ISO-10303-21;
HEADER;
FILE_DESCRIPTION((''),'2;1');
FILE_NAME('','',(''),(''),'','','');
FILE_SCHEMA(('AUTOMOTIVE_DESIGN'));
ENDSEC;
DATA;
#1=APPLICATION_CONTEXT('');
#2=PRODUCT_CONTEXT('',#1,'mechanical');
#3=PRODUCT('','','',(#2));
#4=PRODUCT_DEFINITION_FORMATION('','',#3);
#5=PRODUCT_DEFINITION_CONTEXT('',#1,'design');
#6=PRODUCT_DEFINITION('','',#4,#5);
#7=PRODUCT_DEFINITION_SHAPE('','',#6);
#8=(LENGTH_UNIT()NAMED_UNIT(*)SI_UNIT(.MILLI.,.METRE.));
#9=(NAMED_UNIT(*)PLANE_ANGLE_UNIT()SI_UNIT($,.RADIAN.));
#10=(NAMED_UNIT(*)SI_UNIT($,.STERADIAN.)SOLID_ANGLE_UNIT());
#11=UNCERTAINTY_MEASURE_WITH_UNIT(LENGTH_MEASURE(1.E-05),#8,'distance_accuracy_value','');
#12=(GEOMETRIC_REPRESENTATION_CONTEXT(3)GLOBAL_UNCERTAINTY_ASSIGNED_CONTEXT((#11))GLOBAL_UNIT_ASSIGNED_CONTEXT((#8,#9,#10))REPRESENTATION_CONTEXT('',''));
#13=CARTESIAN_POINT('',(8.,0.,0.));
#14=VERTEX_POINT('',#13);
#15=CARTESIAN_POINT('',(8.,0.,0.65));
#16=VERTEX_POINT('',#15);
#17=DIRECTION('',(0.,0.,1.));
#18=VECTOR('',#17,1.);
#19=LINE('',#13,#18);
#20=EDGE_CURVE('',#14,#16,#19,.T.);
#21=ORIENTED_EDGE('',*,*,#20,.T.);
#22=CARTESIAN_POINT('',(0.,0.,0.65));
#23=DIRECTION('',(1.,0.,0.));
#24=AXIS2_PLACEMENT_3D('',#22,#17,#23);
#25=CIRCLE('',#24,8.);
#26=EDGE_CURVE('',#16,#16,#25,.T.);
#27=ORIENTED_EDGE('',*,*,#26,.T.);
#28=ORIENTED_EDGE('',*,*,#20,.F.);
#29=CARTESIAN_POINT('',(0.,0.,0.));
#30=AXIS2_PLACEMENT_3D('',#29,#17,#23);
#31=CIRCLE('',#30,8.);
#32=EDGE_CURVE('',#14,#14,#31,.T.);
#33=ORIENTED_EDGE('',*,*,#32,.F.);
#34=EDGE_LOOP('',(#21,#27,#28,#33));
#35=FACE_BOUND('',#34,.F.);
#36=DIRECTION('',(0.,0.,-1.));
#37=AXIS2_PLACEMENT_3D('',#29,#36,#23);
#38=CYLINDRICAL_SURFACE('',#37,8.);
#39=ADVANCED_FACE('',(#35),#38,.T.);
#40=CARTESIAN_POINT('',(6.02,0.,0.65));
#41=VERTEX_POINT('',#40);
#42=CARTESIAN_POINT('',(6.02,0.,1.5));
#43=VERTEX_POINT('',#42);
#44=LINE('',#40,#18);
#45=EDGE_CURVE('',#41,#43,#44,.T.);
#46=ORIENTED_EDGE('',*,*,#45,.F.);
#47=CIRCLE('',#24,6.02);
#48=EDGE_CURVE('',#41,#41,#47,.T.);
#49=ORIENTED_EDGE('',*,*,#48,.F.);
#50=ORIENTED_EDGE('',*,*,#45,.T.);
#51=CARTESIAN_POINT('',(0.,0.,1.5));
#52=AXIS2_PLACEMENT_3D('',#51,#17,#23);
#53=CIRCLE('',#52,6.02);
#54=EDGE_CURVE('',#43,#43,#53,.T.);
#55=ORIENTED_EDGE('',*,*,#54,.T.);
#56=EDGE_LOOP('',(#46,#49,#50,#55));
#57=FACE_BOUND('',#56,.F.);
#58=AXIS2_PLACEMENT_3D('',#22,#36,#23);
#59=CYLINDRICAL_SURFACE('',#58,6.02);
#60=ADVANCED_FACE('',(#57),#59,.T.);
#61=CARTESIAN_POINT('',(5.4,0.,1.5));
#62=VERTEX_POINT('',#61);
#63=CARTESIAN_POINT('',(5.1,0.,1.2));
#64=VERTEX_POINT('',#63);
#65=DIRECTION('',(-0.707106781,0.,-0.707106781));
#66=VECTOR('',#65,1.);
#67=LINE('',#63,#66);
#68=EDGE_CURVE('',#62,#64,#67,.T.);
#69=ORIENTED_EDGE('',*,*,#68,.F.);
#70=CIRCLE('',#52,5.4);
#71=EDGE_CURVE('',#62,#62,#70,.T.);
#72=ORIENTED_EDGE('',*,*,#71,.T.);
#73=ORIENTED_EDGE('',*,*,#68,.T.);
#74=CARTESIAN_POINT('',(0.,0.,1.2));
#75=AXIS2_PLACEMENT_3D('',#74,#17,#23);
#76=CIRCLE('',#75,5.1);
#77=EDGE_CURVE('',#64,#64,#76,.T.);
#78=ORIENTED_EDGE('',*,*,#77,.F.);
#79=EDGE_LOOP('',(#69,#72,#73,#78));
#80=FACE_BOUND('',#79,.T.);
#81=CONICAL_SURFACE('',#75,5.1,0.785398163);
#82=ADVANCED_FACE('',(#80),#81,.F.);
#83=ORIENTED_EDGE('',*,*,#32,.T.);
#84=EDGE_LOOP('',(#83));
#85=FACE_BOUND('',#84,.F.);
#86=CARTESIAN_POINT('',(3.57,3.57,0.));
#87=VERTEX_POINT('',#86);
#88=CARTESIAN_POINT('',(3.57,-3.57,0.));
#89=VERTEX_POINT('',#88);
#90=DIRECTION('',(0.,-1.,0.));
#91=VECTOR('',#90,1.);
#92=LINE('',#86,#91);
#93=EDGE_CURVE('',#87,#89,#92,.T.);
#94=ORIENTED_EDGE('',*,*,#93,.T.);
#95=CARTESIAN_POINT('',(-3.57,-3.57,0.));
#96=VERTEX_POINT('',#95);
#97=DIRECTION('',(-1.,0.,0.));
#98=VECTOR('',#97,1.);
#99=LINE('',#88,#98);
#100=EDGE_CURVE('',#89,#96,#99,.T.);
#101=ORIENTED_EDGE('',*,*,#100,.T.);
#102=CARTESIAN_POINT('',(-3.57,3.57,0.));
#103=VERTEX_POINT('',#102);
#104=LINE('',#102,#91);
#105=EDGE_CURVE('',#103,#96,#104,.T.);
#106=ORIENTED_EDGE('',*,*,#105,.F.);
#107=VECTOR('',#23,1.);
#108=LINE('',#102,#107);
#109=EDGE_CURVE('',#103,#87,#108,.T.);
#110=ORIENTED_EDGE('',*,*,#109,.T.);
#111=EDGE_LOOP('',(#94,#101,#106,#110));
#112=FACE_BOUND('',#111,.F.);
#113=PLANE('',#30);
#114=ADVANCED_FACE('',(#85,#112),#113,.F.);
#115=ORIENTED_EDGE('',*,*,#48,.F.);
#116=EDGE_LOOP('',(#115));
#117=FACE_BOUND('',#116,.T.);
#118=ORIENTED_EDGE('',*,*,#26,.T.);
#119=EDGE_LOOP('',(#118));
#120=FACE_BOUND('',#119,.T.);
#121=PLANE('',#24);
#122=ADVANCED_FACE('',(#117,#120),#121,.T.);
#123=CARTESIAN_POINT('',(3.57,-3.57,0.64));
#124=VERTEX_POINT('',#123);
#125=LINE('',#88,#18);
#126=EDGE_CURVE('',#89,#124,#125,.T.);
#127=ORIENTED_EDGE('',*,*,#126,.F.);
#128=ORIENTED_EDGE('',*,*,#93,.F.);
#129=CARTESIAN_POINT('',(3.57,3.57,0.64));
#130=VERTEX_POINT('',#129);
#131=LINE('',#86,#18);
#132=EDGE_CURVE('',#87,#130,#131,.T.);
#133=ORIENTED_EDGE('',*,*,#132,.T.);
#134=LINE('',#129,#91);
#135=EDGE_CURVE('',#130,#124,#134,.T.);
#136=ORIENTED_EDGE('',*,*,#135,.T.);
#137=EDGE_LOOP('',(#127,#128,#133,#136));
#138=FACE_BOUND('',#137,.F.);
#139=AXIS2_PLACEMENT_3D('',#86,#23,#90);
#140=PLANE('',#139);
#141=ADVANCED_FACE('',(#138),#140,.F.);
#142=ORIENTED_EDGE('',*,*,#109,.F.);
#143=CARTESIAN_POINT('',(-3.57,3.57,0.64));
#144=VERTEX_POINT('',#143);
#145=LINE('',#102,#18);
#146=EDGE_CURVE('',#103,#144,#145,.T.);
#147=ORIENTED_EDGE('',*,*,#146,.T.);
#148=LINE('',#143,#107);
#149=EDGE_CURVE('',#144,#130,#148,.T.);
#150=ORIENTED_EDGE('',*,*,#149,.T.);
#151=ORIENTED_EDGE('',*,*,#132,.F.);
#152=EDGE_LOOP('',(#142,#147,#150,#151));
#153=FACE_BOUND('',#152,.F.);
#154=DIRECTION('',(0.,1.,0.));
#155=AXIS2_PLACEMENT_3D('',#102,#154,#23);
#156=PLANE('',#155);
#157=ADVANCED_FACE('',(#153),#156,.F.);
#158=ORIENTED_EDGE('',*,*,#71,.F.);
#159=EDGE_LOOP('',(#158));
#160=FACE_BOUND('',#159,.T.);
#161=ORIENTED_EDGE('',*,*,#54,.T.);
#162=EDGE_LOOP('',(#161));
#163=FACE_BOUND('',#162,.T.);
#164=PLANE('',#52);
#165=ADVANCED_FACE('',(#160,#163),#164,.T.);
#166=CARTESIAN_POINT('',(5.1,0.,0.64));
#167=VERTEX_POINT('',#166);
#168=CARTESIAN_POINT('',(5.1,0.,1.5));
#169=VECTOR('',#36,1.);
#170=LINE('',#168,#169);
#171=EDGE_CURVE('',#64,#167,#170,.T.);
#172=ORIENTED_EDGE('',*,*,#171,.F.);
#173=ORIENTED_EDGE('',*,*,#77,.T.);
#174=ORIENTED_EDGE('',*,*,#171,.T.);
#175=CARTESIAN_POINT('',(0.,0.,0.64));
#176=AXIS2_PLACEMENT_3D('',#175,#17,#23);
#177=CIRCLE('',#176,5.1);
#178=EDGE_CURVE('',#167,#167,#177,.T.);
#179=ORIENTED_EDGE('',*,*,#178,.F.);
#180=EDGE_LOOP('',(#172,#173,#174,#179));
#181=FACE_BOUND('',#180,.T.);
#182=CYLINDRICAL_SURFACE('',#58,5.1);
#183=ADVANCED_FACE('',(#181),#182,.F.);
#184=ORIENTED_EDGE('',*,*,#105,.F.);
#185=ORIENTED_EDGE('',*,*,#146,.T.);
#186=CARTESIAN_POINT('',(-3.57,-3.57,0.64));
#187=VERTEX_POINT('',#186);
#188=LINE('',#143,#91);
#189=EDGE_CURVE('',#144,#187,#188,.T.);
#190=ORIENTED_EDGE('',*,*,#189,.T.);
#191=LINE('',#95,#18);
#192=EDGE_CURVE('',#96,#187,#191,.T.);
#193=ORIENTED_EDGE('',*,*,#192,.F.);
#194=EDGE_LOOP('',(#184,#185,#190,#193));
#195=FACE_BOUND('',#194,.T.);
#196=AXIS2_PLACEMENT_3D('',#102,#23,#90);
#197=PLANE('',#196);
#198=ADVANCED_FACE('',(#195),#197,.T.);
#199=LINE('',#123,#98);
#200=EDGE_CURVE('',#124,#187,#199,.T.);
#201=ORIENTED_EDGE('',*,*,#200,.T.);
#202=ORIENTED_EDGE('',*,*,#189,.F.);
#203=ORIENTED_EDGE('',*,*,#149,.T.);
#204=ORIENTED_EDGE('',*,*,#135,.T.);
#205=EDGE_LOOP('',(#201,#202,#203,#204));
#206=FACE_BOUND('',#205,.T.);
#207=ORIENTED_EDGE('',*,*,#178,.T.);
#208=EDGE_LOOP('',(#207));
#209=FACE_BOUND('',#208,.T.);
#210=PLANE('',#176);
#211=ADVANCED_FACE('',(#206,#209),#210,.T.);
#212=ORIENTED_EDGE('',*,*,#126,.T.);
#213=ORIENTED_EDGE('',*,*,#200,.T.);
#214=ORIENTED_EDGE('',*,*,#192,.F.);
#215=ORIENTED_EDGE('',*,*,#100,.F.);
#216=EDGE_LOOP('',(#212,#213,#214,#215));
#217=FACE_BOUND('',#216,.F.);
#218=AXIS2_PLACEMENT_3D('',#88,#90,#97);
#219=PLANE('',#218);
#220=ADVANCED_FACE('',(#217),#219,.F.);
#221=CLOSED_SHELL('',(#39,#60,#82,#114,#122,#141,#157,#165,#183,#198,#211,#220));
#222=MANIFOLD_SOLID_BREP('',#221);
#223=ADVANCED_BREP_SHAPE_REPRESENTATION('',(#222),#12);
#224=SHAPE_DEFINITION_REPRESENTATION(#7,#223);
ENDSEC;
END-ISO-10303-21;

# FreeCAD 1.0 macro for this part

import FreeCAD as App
import Part
import Sketcher
from FreeCAD import Vector
Q = App.Units.Quantity


def edges_at(feature, points):
    """Names of the edges that pass closest to the given points."""
    edges = feature.Shape.Edges
    near = lambda p: min(range(len(edges)), key=lambda i: edges[i].distToShape(Part.Vertex(*p))[0])
    return sorted({f"Edge{near(p) + 1}" for p in points})

doc = App.newDocument("Part")
params = doc.addObject("Spreadsheet::Sheet", "Params")
for row, (alias, value) in enumerate([
    ("sketch1_diameter", "16 mm"),
    ("pad1_length", "0.65 mm"),
    ("sketch2_diameter", "10.2 mm"),
    ("sketch2_diameter2", "12.04 mm"),
    ("pad2_length", "0.85 mm"),
    ("sketch3_diameter", "10.2 mm"),
    ("pocket1_length", "0.01 mm"),
    ("sketch4_width", "7.14 mm"),
    ("pocket2_length", "0.64 mm"),
    ("chamfer_size", "0.3 mm"),
], start=1):
    params.set(f"A{row}", alias)
    params.set(f"B{row}", "=" + value)
    params.setAlias(f"B{row}", alias)

body = doc.addObject("PartDesign::Body", "Body")

sketch1 = doc.addObject("Sketcher::SketchObject", "Sketch")
body.addObject(sketch1)
sketch1.AttachmentSupport = (doc.XY_Plane, [""])
sketch1.MapMode = "FlatFace"
sketch1.addGeometry(Part.Circle(Vector(0, 0, 0), Vector(0, 0, 1), 8), False)
sketch1.addConstraint(Sketcher.Constraint("Coincident", 0, 3, -1, 1))
sketch1.addConstraint(Sketcher.Constraint("Diameter", 0, Q("16 mm")))
sketch1.setExpression("Constraints[1]", "Params.sketch1_diameter")
pad1 = doc.addObject("PartDesign::Pad", "Pad")
body.addObject(pad1)
pad1.Profile = sketch1
pad1.setExpression("Length", "Params.pad1_length")

sketch2 = doc.addObject("Sketcher::SketchObject", "Sketch001")
body.addObject(sketch2)
sketch2.AttachmentSupport = (doc.XY_Plane, [""])
sketch2.MapMode = "FlatFace"
sketch2.AttachmentOffset = App.Placement(Vector(0, 0, 0.65), App.Rotation())
sketch2.addGeometry(Part.Circle(Vector(0, 0, 0), Vector(0, 0, 1), 6), False)
sketch2.addGeometry(Part.Circle(Vector(0, 0, 0), Vector(0, 0, 1), 5), False)
sketch2.addConstraint(Sketcher.Constraint("Coincident", 0, 3, -1, 1))
sketch2.addConstraint(Sketcher.Constraint("Coincident", 1, 3, -1, 1))
sketch2.addConstraint(Sketcher.Constraint("Diameter", 1, Q("10.2 mm")))
sketch2.addConstraint(Sketcher.Constraint("Diameter", 0, Q("12.04 mm")))
sketch2.setExpression("Constraints[2]", "Params.sketch2_diameter")
sketch2.setExpression("Constraints[3]", "Params.sketch2_diameter2")
pad2 = doc.addObject("PartDesign::Pad", "Pad001")
body.addObject(pad2)
pad2.Profile = sketch2
pad2.setExpression("Length", "Params.pad2_length")

sketch3 = doc.addObject("Sketcher::SketchObject", "Sketch002")
body.addObject(sketch3)
sketch3.AttachmentSupport = (doc.XY_Plane, [""])
sketch3.MapMode = "FlatFace"
sketch3.AttachmentOffset = App.Placement(Vector(0, 0, 0.65), App.Rotation())
sketch3.addGeometry(Part.Circle(Vector(0, 0, 0), Vector(0, 0, 1), 5), False)
sketch3.addConstraint(Sketcher.Constraint("Coincident", 0, 3, -1, 1))
sketch3.addConstraint(Sketcher.Constraint("Diameter", 0, Q("10.2 mm")))
sketch3.setExpression("Constraints[1]", "Params.sketch3_diameter")
pocket1 = doc.addObject("PartDesign::Pocket", "Pocket")
body.addObject(pocket1)
pocket1.Profile = sketch3
pocket1.setExpression("Length", "Params.pocket1_length")

sketch4 = doc.addObject("Sketcher::SketchObject", "Sketch003")
body.addObject(sketch4)
sketch4.AttachmentSupport = (doc.XY_Plane, [""])
sketch4.MapMode = "FlatFace"
sketch4.addGeometry(Part.LineSegment(Vector(4, 4, 0), Vector(-4, 4, 0)), False)
sketch4.addGeometry(Part.LineSegment(Vector(-4, 4, 0), Vector(-4, -4, 0)), False)
sketch4.addGeometry(Part.LineSegment(Vector(-4, -4, 0), Vector(4, -4, 0)), False)
sketch4.addGeometry(Part.LineSegment(Vector(4, -4, 0), Vector(4, 4, 0)), False)
sketch4.addConstraint(Sketcher.Constraint("Coincident", 0, 2, 1, 1))
sketch4.addConstraint(Sketcher.Constraint("Coincident", 1, 2, 2, 1))
sketch4.addConstraint(Sketcher.Constraint("Coincident", 2, 2, 3, 1))
sketch4.addConstraint(Sketcher.Constraint("Coincident", 3, 2, 0, 1))
sketch4.addConstraint(Sketcher.Constraint("Horizontal", 0))
sketch4.addConstraint(Sketcher.Constraint("Vertical", 1))
sketch4.addConstraint(Sketcher.Constraint("Horizontal", 2))
sketch4.addConstraint(Sketcher.Constraint("Vertical", 3))
sketch4.addConstraint(Sketcher.Constraint("Symmetric", 0, 2, 2, 2, -1, 1))
sketch4.addConstraint(Sketcher.Constraint("Equal", 2, 1))
sketch4.addConstraint(Sketcher.Constraint("DistanceX", 0, 2, 0, 1, Q("7.14 mm")))
sketch4.setExpression("Constraints[10]", "Params.sketch4_width")
pocket2 = doc.addObject("PartDesign::Pocket", "Pocket001")
body.addObject(pocket2)
pocket2.Profile = sketch4
pocket2.setExpression("Length", "Params.pocket2_length")
pocket2.Reversed = True
doc.recompute()

chamfer = doc.addObject("PartDesign::Chamfer", "Chamfer")
body.addObject(chamfer)
chamfer.Base = (pocket2, edges_at(pocket2, [(-5.1, 0, 1.5)]))
chamfer.setExpression("Size", "Params.chamfer_size")

doc.recompute()
